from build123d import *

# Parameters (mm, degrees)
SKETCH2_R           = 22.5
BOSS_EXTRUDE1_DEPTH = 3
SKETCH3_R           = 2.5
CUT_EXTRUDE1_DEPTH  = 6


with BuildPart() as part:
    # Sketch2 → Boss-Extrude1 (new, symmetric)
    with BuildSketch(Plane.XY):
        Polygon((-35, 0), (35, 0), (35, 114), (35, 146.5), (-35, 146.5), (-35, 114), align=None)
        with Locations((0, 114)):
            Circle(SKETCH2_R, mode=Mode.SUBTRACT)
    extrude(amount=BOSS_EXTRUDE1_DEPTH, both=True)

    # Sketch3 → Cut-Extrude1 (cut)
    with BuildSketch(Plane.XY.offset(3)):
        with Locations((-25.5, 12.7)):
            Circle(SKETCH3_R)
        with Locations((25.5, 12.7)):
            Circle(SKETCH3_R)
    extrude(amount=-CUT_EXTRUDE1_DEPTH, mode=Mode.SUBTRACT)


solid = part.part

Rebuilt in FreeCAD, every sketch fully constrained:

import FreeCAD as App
import Part
import Sketcher
from FreeCAD import Vector
Q = App.Units.Quantity

doc = App.newDocument("Part")
body = doc.addObject("PartDesign::Body", "Body")

# Sketch on XY plane
sketch1 = body.newObject("Sketcher::SketchObject", "Sketch")
sketch1.AttachmentSupport = (doc.getObject("XY_Plane"), [""])
sketch1.MapMode = "FlatFace"
sketch1.addGeometry([
    Part.LineSegment(Vector(-35, 0, 0), Vector(35, 0, 0)),  # 0
    Part.LineSegment(Vector(35, 0, 0), Vector(35, 146.5, 0)),  # 1
    Part.LineSegment(Vector(35, 146.5, 0), Vector(-35, 146.5, 0)),  # 2
    Part.LineSegment(Vector(-35, 146.5, 0), Vector(-35, 0, 0)),  # 3
    Part.Circle(Vector(0, 114, 0), Vector(0, 0, 1), 22.5),  # 4
], False)
sketch1.addConstraint([
    Sketcher.Constraint("Coincident", 0, 2, 1, 1),
    Sketcher.Constraint("Coincident", 1, 2, 2, 1),
    Sketcher.Constraint("Coincident", 2, 2, 3, 1),
    Sketcher.Constraint("Coincident", 3, 2, 0, 1),
    Sketcher.Constraint("Horizontal", 0),
    Sketcher.Constraint("Vertical", 1),
    Sketcher.Constraint("Horizontal", 2),
    Sketcher.Constraint("Vertical", 3),
    Sketcher.Constraint("Symmetric", 0, 2, 3, 2, -1, 1),
    Sketcher.Constraint("PointOnObject", 4, 3, -2),
    Sketcher.Constraint("Diameter", 4, Q("45 mm")),
    Sketcher.Constraint("DistanceX", 0, 1, 0, 2, Q("70 mm")),
    Sketcher.Constraint("DistanceY", 1, 1, 1, 2, Q("146.5 mm")),
    Sketcher.Constraint("DistanceY", -1, 1, 4, 3, Q("114 mm")),
])
pad1 = body.newObject("PartDesign::Pad", "Pad")
pad1.Profile = sketch1
pad1.Length = 6
pad1.Midplane = True

# Sketch on XY plane
sketch2 = body.newObject("Sketcher::SketchObject", "Sketch001")
sketch2.AttachmentSupport = (doc.getObject("XY_Plane"), [""])
sketch2.MapMode = "FlatFace"
sketch2.AttachmentOffset = App.Placement(Vector(0, 0, 3), App.Rotation())
sketch2.addGeometry([
    Part.Circle(Vector(-25.5, 12.7, 0), Vector(0, 0, 1), 2.5),
    Part.Circle(Vector(25.5, 12.7, 0), Vector(0, 0, 1), 2.5),
], False)
sketch2.addConstraint([
    Sketcher.Constraint("Equal", 0, 1),
    Sketcher.Constraint("Symmetric", 0, 3, 1, 3, -2),
    Sketcher.Constraint("Diameter", 0, Q("5 mm")),
    Sketcher.Constraint("DistanceX", 0, 3, 1, 3, Q("51 mm")),
    Sketcher.Constraint("DistanceY", -1, 1, 0, 3, Q("12.7 mm")),
])
pocket1 = body.newObject("PartDesign::Pocket", "Pocket")
pocket1.Profile = sketch2
pocket1.Length = 6

doc.recompute()
